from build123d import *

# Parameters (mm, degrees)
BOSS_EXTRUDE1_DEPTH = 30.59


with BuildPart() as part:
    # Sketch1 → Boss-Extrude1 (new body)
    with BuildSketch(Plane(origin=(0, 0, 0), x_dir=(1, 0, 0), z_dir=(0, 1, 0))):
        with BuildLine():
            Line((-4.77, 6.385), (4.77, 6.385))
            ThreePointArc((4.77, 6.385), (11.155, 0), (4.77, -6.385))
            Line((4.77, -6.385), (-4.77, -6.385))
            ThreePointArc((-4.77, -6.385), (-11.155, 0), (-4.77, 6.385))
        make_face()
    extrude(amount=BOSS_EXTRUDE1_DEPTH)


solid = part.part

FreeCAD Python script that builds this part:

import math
import FreeCAD as App
import Part
import Sketcher
from FreeCAD import Vector
Q = App.Units.Quantity

doc = App.newDocument("Part")
body = doc.addObject("PartDesign::Body", "Body")

# Sketch on XZ plane
sketch1 = body.newObject("Sketcher::SketchObject", "Sketch")
sketch1.AttachmentSupport = (doc.getObject("XZ_Plane"), [""])
sketch1.MapMode = "FlatFace"
sketch1.addGeometry(Part.LineSegment(Vector(5, -6, 0), Vector(-5, -6, 0)), False)
sketch1.addGeometry(Part.ArcOfCircle(Part.Circle(Vector(-5, 0, 0), Vector(0, 0, 1), 6), math.radians(90), math.radians(270)), False)
sketch1.addGeometry(Part.LineSegment(Vector(-5, 6, 0), Vector(5, 6, 0)), False)
sketch1.addGeometry(Part.ArcOfCircle(Part.Circle(Vector(5, 0, 0), Vector(0, 0, 1), 6), math.radians(-90), math.radians(90)), False)
sketch1.addConstraint(Sketcher.Constraint("Tangent", 0, 2, 1, 2))
sketch1.addConstraint(Sketcher.Constraint("Tangent", 1, 1, 2, 1))
sketch1.addConstraint(Sketcher.Constraint("Tangent", 2, 2, 3, 2))
sketch1.addConstraint(Sketcher.Constraint("Tangent", 3, 1, 0, 1))
sketch1.addConstraint(Sketcher.Constraint("Horizontal", 0))
sketch1.addConstraint(Sketcher.Constraint("Horizontal", 2))
sketch1.addConstraint(Sketcher.Constraint("Symmetric", 1, 3, 3, 3, -1, 1))
sketch1.addConstraint(Sketcher.Constraint("Radius", 1, Q("6.385 mm")))
sketch1.addConstraint(Sketcher.Constraint("DistanceX", 0, 2, 0, 1, Q("9.54 mm")))
pad1 = body.newObject("PartDesign::Pad", "Pad")
pad1.Profile = sketch1
pad1.Length = 30.59
pad1.Reversed = True

doc.recompute()
